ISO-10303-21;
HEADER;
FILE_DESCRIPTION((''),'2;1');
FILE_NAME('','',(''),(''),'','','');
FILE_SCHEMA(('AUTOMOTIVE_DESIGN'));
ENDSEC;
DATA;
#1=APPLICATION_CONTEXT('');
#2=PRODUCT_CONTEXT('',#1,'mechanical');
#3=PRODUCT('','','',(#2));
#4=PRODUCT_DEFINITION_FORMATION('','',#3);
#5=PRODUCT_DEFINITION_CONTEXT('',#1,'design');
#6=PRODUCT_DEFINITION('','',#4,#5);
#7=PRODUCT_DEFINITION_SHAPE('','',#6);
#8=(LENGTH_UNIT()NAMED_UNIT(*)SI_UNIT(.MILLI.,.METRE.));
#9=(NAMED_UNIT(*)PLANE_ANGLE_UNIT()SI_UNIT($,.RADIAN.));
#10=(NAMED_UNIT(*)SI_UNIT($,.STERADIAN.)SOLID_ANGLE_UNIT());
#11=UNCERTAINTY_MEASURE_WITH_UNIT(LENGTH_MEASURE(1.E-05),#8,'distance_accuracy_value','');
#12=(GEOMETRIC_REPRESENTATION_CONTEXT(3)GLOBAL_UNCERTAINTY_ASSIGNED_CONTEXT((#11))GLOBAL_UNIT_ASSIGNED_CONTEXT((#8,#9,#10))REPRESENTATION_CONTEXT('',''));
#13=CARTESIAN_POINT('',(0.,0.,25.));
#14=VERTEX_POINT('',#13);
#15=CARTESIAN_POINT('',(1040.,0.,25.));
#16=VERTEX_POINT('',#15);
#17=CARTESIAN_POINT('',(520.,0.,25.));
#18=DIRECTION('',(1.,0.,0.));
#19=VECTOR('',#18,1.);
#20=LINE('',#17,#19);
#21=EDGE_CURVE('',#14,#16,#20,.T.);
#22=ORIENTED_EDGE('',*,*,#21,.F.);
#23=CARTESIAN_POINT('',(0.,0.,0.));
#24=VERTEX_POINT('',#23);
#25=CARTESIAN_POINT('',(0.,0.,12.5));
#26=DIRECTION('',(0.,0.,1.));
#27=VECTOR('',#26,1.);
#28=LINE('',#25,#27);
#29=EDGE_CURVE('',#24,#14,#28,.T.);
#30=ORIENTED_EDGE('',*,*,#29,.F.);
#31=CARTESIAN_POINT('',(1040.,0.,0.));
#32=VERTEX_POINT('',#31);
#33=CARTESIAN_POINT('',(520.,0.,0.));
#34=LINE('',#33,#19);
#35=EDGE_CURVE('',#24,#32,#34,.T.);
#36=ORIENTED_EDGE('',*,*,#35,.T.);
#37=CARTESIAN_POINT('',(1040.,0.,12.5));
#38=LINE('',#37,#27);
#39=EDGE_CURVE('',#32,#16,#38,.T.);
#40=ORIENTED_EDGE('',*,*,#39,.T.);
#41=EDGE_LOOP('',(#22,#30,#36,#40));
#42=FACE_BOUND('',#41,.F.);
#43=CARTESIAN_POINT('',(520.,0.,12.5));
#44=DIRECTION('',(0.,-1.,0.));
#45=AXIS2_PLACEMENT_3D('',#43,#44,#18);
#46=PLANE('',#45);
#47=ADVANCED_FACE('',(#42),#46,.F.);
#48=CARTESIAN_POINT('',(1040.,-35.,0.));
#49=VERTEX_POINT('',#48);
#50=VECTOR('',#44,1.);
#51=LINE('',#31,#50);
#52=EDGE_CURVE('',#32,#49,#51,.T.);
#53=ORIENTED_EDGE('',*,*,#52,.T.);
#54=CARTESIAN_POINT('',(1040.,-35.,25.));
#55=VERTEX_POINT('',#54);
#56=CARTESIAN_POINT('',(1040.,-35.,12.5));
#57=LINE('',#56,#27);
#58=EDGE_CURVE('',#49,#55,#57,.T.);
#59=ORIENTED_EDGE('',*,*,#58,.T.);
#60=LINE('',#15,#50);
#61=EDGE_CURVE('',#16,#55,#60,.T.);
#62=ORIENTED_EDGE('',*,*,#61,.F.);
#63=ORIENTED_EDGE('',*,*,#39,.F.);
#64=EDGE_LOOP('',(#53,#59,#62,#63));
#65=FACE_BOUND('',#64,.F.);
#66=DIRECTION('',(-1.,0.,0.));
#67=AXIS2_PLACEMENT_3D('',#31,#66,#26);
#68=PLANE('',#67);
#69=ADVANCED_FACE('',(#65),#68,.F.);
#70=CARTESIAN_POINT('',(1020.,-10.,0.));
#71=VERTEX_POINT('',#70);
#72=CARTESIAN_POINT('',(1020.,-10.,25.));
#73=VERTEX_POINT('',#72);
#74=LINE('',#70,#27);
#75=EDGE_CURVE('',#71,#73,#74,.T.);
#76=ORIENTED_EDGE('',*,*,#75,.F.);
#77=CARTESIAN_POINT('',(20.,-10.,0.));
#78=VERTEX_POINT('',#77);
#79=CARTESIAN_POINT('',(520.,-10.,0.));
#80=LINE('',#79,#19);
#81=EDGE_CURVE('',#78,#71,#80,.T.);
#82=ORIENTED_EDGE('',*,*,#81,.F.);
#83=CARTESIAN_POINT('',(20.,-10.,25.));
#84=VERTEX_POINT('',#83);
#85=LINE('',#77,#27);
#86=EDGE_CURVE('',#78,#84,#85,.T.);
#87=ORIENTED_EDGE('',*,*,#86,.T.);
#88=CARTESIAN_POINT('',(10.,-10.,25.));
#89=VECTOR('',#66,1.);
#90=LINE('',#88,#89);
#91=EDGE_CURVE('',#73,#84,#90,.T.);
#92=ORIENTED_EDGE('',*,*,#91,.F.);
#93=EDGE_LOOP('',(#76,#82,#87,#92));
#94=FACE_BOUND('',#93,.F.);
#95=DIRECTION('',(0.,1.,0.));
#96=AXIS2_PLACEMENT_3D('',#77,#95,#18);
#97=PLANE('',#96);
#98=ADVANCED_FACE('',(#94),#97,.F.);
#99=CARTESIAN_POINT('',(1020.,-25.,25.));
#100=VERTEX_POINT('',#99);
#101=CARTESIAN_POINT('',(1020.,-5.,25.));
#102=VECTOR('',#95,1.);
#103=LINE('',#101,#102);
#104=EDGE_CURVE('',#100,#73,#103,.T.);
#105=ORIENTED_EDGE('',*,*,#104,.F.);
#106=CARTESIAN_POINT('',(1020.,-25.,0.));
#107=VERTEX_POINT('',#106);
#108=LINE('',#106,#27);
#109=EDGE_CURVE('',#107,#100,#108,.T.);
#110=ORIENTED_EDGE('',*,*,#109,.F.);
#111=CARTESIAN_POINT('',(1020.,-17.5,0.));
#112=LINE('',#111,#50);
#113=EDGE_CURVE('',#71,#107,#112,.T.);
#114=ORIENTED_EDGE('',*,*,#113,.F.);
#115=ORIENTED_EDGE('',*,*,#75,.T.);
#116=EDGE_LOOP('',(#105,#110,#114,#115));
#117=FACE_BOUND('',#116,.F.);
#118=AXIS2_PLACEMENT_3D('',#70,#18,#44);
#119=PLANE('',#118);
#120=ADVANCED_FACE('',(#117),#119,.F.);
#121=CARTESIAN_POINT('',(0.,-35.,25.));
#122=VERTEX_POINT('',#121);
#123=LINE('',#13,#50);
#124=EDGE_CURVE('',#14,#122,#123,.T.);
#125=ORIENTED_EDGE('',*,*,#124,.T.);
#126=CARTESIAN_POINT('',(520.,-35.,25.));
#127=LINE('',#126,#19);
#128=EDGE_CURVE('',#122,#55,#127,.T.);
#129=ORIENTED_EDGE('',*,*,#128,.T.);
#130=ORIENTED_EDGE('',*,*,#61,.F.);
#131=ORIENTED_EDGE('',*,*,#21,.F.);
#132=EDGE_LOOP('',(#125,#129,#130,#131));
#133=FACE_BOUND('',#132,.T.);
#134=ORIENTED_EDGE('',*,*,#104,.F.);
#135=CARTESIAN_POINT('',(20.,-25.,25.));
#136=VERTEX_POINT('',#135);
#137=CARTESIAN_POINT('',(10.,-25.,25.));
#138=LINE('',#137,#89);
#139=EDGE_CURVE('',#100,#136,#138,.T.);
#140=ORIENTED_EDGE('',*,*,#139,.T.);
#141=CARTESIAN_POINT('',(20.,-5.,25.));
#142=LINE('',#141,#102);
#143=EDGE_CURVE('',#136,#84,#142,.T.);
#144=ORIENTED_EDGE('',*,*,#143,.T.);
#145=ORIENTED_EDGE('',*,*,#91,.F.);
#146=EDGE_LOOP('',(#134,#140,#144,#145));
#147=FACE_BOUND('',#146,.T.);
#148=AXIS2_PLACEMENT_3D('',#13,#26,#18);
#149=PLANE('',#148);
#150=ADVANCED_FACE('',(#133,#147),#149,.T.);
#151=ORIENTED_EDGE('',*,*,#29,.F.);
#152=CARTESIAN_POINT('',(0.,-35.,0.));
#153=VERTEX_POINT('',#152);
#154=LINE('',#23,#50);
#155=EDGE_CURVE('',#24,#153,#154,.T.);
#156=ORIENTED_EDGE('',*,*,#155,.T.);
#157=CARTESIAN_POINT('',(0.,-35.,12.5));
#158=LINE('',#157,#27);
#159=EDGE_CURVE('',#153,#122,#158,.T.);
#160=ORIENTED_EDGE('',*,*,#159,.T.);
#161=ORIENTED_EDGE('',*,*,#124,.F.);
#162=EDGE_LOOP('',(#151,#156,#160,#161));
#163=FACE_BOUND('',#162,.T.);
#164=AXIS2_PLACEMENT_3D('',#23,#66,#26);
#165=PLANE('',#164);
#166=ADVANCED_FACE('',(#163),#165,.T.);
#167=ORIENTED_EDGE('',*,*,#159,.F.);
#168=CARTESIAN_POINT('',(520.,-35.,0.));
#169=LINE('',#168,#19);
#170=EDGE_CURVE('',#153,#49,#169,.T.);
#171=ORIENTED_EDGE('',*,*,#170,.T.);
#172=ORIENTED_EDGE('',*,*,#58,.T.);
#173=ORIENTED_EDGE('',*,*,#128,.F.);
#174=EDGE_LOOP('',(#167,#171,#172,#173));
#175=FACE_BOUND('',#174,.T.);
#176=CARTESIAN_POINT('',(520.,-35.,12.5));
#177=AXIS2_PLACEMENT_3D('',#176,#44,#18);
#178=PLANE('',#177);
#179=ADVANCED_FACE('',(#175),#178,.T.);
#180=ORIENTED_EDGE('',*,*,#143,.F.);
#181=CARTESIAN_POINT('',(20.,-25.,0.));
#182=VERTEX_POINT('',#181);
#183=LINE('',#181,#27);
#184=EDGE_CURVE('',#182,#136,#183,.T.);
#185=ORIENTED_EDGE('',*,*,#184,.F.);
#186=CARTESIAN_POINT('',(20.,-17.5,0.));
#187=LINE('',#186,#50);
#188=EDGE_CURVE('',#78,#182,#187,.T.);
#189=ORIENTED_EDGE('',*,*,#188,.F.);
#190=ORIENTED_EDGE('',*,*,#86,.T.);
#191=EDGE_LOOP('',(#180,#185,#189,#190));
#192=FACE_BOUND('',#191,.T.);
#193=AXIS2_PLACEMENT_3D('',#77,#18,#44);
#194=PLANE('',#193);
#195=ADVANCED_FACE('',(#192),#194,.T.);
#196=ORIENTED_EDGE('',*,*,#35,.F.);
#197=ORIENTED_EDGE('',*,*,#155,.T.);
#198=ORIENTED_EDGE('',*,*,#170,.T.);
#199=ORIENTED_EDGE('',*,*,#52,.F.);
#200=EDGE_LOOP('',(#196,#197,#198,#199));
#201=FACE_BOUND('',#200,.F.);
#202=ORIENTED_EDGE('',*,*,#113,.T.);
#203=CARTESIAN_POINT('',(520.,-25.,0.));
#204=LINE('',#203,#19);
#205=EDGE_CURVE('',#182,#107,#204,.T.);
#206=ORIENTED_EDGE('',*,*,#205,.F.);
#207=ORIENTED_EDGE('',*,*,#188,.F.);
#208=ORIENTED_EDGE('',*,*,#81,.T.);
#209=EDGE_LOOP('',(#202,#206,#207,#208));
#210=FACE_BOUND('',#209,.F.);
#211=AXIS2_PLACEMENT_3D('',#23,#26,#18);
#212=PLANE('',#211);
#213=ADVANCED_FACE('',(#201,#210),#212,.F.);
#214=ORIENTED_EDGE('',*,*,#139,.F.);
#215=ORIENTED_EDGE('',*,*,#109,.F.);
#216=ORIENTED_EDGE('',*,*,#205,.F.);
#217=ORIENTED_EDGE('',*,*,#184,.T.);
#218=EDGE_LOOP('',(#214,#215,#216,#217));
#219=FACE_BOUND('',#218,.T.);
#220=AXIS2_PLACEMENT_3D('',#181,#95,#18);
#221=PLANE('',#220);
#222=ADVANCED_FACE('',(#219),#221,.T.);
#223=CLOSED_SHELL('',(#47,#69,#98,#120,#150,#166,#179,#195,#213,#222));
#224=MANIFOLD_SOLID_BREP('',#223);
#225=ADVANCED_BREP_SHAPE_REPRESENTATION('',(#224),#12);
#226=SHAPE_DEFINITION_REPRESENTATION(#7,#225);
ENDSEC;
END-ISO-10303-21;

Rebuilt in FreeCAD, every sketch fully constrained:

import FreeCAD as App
import Part
import Sketcher


def add_polygon(sketch, points):
    """Adds a closed chain of lines whose ends are joined by coincident constraints."""
    first, n = sketch.GeometryCount, len(points)
    for a, b in zip(points, points[1:] + points[:1]):
        sketch.addGeometry(Part.LineSegment(App.Vector(*a, 0), App.Vector(*b, 0)), False)
    for i in range(n):
        sketch.addConstraint(Sketcher.Constraint("Coincident", first + i, 2, first + (i + 1) % n, 1))

doc = App.newDocument("Part")
body = doc.addObject("PartDesign::Body", "Body")

sketch1 = body.newObject("Sketcher::SketchObject", "Sketch")
sketch1.AttachmentSupport = (doc.getObject("XZ_Plane"), [""])
sketch1.MapMode = "FlatFace"
add_polygon(sketch1, [(0, 25), (0, 0), (1040, 0), (1040, 25)])
sketch1.addConstraint([
    Sketcher.Constraint("Vertical", 0),
    Sketcher.Constraint("Horizontal", 1),
    Sketcher.Constraint("Vertical", 2),
    Sketcher.Constraint("Horizontal", 3),
    Sketcher.Constraint("Coincident", 0, 2, -1, 1),
    Sketcher.Constraint("DistanceX", 1, 1, 1, 2, 1040.0),
    Sketcher.Constraint("DistanceY", 0, 2, 0, 1, 25.0),
])
pad1 = body.newObject("PartDesign::Pad", "Pad")
pad1.Profile = sketch1
pad1.Length = 35

sketch2 = body.newObject("Sketcher::SketchObject", "Sketch001")
sketch2.AttachmentSupport = (doc.getObject("XY_Plane"), [""])
sketch2.MapMode = "FlatFace"
add_polygon(sketch2, [(20, -25), (20, -10), (1020, -10), (1020, -25)])
sketch2.addConstraint([
    Sketcher.Constraint("Vertical", 0),
    Sketcher.Constraint("Horizontal", 1),
    Sketcher.Constraint("Vertical", 2),
    Sketcher.Constraint("Horizontal", 3),
    Sketcher.Constraint("DistanceX", 1, 1, 1, 2, 1000.0),
    Sketcher.Constraint("DistanceY", 0, 1, 0, 2, 15.0),
    Sketcher.Constraint("DistanceX", -1, 1, 0, 2, 20.0),
    Sketcher.Constraint("DistanceY", 0, 2, -1, 1, 10.0),
])
pocket1 = body.newObject("PartDesign::Pocket", "Pocket")
pocket1.Profile = sketch2
pocket1.Type = "ThroughAll"
pocket1.Reversed = True

doc.recompute()
